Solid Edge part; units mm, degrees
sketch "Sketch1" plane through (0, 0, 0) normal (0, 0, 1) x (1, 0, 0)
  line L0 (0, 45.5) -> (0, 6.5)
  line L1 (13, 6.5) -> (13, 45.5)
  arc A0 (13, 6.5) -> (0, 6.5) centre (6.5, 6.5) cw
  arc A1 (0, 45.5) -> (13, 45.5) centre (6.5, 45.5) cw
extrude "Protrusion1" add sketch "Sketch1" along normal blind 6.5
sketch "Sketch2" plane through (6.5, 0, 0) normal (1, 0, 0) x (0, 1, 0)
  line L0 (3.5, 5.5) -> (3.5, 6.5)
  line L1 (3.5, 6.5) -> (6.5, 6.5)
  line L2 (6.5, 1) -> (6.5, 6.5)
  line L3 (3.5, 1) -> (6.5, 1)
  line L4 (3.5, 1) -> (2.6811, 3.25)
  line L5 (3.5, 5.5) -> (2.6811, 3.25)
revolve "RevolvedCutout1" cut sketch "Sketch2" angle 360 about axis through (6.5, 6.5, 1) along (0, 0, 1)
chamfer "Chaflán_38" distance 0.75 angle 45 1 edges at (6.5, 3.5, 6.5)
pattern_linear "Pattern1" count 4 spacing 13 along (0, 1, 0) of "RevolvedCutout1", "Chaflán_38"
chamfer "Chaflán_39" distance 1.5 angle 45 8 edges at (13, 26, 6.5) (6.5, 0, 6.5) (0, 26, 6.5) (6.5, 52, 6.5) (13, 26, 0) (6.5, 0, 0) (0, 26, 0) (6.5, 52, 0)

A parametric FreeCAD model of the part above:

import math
import FreeCAD as App
import Part
import Sketcher
from FreeCAD import Vector
Q = App.Units.Quantity


def edges_at(feature, points):
    """Names of the edges that pass closest to the given points."""
    edges = feature.Shape.Edges
    near = lambda p: min(range(len(edges)), key=lambda i: edges[i].distToShape(Part.Vertex(*p))[0])
    return sorted({f"Edge{near(p) + 1}" for p in points})

doc = App.newDocument("Part")
params = doc.addObject("Spreadsheet::Sheet", "Params")
for row, (alias, value) in enumerate([
    ("sketch1_radius", "6.5 mm"),
    ("sketch1_height", "39 mm"),
    ("pad1_length", "6.5 mm"),
    ("sketch2_width", "3 mm"),
    ("sketch2_height", "1 mm"),
    ("sketch2_height2", "5.5 mm"),
    ("groove_angle", "360 deg"),
    ("chamfer_size", "0.75 mm"),
    ("linearpattern_pitch", "13 mm"),
    ("chamfer2_size", "1.5 mm"),
], start=1):
    params.set(f"A{row}", alias)
    params.set(f"B{row}", "=" + value)
    params.setAlias(f"B{row}", alias)

body = doc.addObject("PartDesign::Body", "Body")

# Sketch on XY plane
sketch1 = body.newObject("Sketcher::SketchObject", "Sketch")
sketch1.AttachmentSupport = (doc.getObject("XY_Plane"), [""])
sketch1.MapMode = "FlatFace"
sketch1.addGeometry([
    Part.ArcOfCircle(Part.Circle(Vector(6, 46, 0), Vector(0, 0, 1), 6), math.radians(0), math.radians(180)),
    Part.LineSegment(Vector(0, 46, 0), Vector(0, 6, 0)),
    Part.ArcOfCircle(Part.Circle(Vector(6, 6, 0), Vector(0, 0, 1), 6), math.radians(180), math.radians(360)),
    Part.LineSegment(Vector(13, 6, 0), Vector(13, 46, 0)),
], False)
sketch1.addConstraint([
    Sketcher.Constraint("Tangent", 0, 2, 1, 1),
    Sketcher.Constraint("Tangent", 1, 2, 2, 1),
    Sketcher.Constraint("Tangent", 2, 2, 3, 1),
    Sketcher.Constraint("Tangent", 3, 2, 0, 1),
    Sketcher.Constraint("Vertical", 1),
    Sketcher.Constraint("Vertical", 3),
    Sketcher.Constraint("PointOnObject", 0, 2, -2),
    Sketcher.Constraint("Radius", 0, 6.5),
    Sketcher.Constraint("DistanceY", 1, 2, 1, 1, 39.0),
    Sketcher.Constraint("DistanceY", -1, 1, 0, 3, 45.5),
])
sketch1.setExpression("Constraints[7]", "Params.sketch1_radius")
sketch1.setExpression("Constraints[8]", "Params.sketch1_height")
pad1 = body.newObject("PartDesign::Pad", "Pad")
pad1.Profile = sketch1
pad1.setExpression("Length", "Params.pad1_length")

# Sketch on YZ plane
sketch2 = body.newObject("Sketcher::SketchObject", "Sketch001")
sketch2.AttachmentSupport = (doc.getObject("YZ_Plane"), [""])
sketch2.MapMode = "FlatFace"
sketch2.AttachmentOffset = App.Placement(Vector(0, 0, 6.5), App.Rotation())
sketch2.addGeometry([
    Part.LineSegment(Vector(3.5, 6.5, 0), Vector(3.5, 5.5, 0)),  # 0
    Part.LineSegment(Vector(3.5, 5.5, 0), Vector(2.7, 3.2, 0)),  # 1
    Part.LineSegment(Vector(2.7, 3.2, 0), Vector(3.5, 1, 0)),  # 2
    Part.LineSegment(Vector(3.5, 1, 0), Vector(6.5, 1, 0)),  # 3
    Part.LineSegment(Vector(6.5, 1, 0), Vector(6.5, 6.5, 0)),  # 4
    Part.LineSegment(Vector(6.5, 6.5, 0), Vector(3.5, 6.5, 0)),  # 5
], False)
sketch2.addGeometry(Part.LineSegment(Vector(6.5, 1, 0), Vector(6.5, 6.5, 0)), True)  # axis
sketch2.addConstraint([
    Sketcher.Constraint("Coincident", 0, 2, 1, 1),
    Sketcher.Constraint("Coincident", 1, 2, 2, 1),
    Sketcher.Constraint("Coincident", 2, 2, 3, 1),
    Sketcher.Constraint("Coincident", 3, 2, 4, 1),
    Sketcher.Constraint("Coincident", 4, 2, 5, 1),
    Sketcher.Constraint("Coincident", 5, 2, 0, 1),
    Sketcher.Constraint("Vertical", 0),
    Sketcher.Constraint("Horizontal", 3),
    Sketcher.Constraint("Vertical", 4),
    Sketcher.Constraint("Horizontal", 5),
    Sketcher.Constraint("Vertical", 6),
    Sketcher.Constraint("Coincident", 6, 1, 3, 2),
    Sketcher.Constraint("Horizontal", 5, 2, 6, 2),
    Sketcher.Constraint("Vertical", 0, 2, 2, 2),
    Sketcher.Constraint("Equal", 1, 2),
    Sketcher.Constraint("DistanceX", 3, 1, 3, 2, 3.0),
    Sketcher.Constraint("DistanceY", 0, 2, 0, 1, 1.0),
    Sketcher.Constraint("Angle", 1, Q("-109.9993 deg")),
    Sketcher.Constraint("DistanceY", 4, 1, 4, 2, 5.5),
    Sketcher.Constraint("DistanceY", -1, 1, 2, 2, 1.0),
    Sketcher.Constraint("DistanceX", -1, 1, 0, 2, 3.5),
])
sketch2.setExpression("Constraints[15]", "Params.sketch2_width")
sketch2.setExpression("Constraints[16]", "Params.sketch2_height")
sketch2.setExpression("Constraints[18]", "Params.sketch2_height2")
groove = body.newObject("PartDesign::Groove", "Groove")
groove.Profile = sketch2
groove.ReferenceAxis = (sketch2, ["Axis0"])
groove.setExpression("Angle", "Params.groove_angle")
doc.recompute()

chamfer = body.newObject("PartDesign::Chamfer", "Chamfer")
chamfer.Base = (groove, edges_at(groove, [(6.5, 3.5, 6.5)]))
chamfer.setExpression("Size", "Params.chamfer_size")
doc.recompute()

linearpattern = body.newObject("PartDesign::LinearPattern", "LinearPattern")
linearpattern.Originals = [groove, chamfer]
linearpattern.Direction = (doc.getObject("Y_Axis"), [""])
linearpattern.Mode = "offset"
linearpattern.setExpression("Offset", "Params.linearpattern_pitch")
linearpattern.Occurrences = 4
body.Tip = linearpattern
doc.recompute()

chamfer2 = body.newObject("PartDesign::Chamfer", "Chamfer001")
chamfer2.Base = (linearpattern, edges_at(linearpattern, [
    (13, 26, 6.5),
    (6.5, 0, 6.5),
    (0, 26, 6.5),
    (6.5, 52, 6.5),
    (13, 26, 0),
    (6.5, 0, 0),
    (0, 26, 0),
    (6.5, 52, 0),
]))
chamfer2.setExpression("Size", "Params.chamfer2_size")

doc.recompute()
